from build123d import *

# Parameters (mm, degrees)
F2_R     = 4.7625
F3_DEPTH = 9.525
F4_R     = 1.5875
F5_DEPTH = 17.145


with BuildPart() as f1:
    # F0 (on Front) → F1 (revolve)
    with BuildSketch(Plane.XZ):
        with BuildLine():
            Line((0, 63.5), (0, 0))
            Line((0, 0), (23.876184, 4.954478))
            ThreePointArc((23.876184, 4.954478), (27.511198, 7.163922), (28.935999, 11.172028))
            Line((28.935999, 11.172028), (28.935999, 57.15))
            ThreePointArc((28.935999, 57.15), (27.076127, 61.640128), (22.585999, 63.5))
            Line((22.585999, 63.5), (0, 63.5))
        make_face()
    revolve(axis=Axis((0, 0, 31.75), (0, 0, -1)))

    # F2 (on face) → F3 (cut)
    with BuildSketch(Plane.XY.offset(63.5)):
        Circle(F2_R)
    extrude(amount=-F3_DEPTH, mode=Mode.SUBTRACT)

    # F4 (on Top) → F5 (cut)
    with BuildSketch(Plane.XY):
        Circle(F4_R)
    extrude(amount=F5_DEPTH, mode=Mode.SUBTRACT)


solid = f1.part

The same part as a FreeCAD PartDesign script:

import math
import FreeCAD as App
import Part
import Sketcher
Q = App.Units.Quantity

doc = App.newDocument("Part")
params = doc.addObject("Spreadsheet::Sheet", "Params")
for row, (alias, value) in enumerate([
    ("sketch1_radius", "0.25 in"),
    ("sketch1_height", "2.5 in"),
    ("revolution_angle", "360 deg"),
    ("sketch2_diameter", "0.375 in"),
    ("pocket1_length", "0.375 in"),
    ("sketch3_diameter", "0.125 in"),
    ("pocket2_length", "0.675 in"),
], start=1):
    params.set(f"A{row}", alias)
    params.set(f"B{row}", "=" + value)
    params.setAlias(f"B{row}", alias)

body = doc.addObject("PartDesign::Body", "Body")

# Sketch on XZ plane
sketch1 = body.newObject("Sketcher::SketchObject", "Sketch")
sketch1.AttachmentSupport = (doc.getObject("XZ_Plane"), [""])
sketch1.MapMode = "FlatFace"
sketch1.addGeometry(Part.LineSegment(App.Vector(0, 64, 0), App.Vector(0, 0, 0)), False)
sketch1.addGeometry(Part.LineSegment(App.Vector(0, 0, 0), App.Vector(24, 5, 0)), False)
sketch1.addGeometry(Part.ArcOfCircle(Part.Circle(App.Vector(23, 11, 0), App.Vector(0, 0, 1), 6), math.radians(-78), math.radians(0)), False)
sketch1.addGeometry(Part.LineSegment(App.Vector(29, 11, 0), App.Vector(29, 57, 0)), False)
sketch1.addGeometry(Part.ArcOfCircle(Part.Circle(App.Vector(23, 57, 0), App.Vector(0, 0, 1), 6), math.radians(0), math.radians(90)), False)
sketch1.addGeometry(Part.LineSegment(App.Vector(23, 64, 0), App.Vector(0, 64, 0)), False)
sketch1.addConstraint(Sketcher.Constraint("Coincident", 0, 2, 1, 1))
sketch1.addConstraint(Sketcher.Constraint("Tangent", 1, 2, 2, 1))
sketch1.addConstraint(Sketcher.Constraint("Tangent", 2, 2, 3, 1))
sketch1.addConstraint(Sketcher.Constraint("Tangent", 3, 2, 4, 1))
sketch1.addConstraint(Sketcher.Constraint("Tangent", 4, 2, 5, 1))
sketch1.addConstraint(Sketcher.Constraint("Coincident", 5, 2, 0, 1))
sketch1.addConstraint(Sketcher.Constraint("Vertical", 0))
sketch1.addConstraint(Sketcher.Constraint("Vertical", 3))
sketch1.addConstraint(Sketcher.Constraint("Horizontal", 5))
sketch1.addConstraint(Sketcher.Constraint("Coincident", 0, 2, -1, 1))
sketch1.addConstraint(Sketcher.Constraint("Equal", 2, 4))
sketch1.addConstraint(Sketcher.Constraint("Radius", 2, Q("0.25 in")))
sketch1.addConstraint(Sketcher.Constraint("DistanceY", 0, 2, 0, 1, Q("2.5 in")))
sketch1.addConstraint(Sketcher.Constraint("DistanceX", 5, 2, 5, 1, Q("22.585999 mm")))
sketch1.addConstraint(Sketcher.Constraint("Distance", 1, Q("24.384811 mm")))
sketch1.setExpression("Constraints[11]", "Params.sketch1_radius")
sketch1.setExpression("Constraints[12]", "Params.sketch1_height")
revolution = body.newObject("PartDesign::Revolution", "Revolution")
revolution.Profile = sketch1
revolution.ReferenceAxis = (sketch1, ["V_Axis"])
revolution.setExpression("Angle", "Params.revolution_angle")

# Sketch on XY plane
sketch2 = body.newObject("Sketcher::SketchObject", "Sketch001")
sketch2.AttachmentSupport = (doc.getObject("XY_Plane"), [""])
sketch2.MapMode = "FlatFace"
sketch2.AttachmentOffset = App.Placement(App.Vector(0, 0, 2.5 * 25.4), App.Rotation())
sketch2.addGeometry(Part.Circle(App.Vector(0, 0, 0), App.Vector(0, 0, 1), 4.8), False)
sketch2.addConstraint(Sketcher.Constraint("Coincident", 0, 3, -1, 1))
sketch2.addConstraint(Sketcher.Constraint("Diameter", 0, Q("0.375 in")))
sketch2.setExpression("Constraints[1]", "Params.sketch2_diameter")
pocket1 = body.newObject("PartDesign::Pocket", "Pocket")
pocket1.Profile = sketch2
pocket1.setExpression("Length", "Params.pocket1_length")

# Sketch on XY plane
sketch3 = body.newObject("Sketcher::SketchObject", "Sketch002")
sketch3.AttachmentSupport = (doc.getObject("XY_Plane"), [""])
sketch3.MapMode = "FlatFace"
sketch3.addGeometry(Part.Circle(App.Vector(0, 0, 0), App.Vector(0, 0, 1), 1.6), False)
sketch3.addConstraint(Sketcher.Constraint("Coincident", 0, 3, -1, 1))
sketch3.addConstraint(Sketcher.Constraint("Diameter", 0, Q("0.125 in")))
sketch3.setExpression("Constraints[1]", "Params.sketch3_diameter")
pocket2 = body.newObject("PartDesign::Pocket", "Pocket001")
pocket2.Profile = sketch3
pocket2.setExpression("Length", "Params.pocket2_length")
pocket2.Reversed = True

doc.recompute()
